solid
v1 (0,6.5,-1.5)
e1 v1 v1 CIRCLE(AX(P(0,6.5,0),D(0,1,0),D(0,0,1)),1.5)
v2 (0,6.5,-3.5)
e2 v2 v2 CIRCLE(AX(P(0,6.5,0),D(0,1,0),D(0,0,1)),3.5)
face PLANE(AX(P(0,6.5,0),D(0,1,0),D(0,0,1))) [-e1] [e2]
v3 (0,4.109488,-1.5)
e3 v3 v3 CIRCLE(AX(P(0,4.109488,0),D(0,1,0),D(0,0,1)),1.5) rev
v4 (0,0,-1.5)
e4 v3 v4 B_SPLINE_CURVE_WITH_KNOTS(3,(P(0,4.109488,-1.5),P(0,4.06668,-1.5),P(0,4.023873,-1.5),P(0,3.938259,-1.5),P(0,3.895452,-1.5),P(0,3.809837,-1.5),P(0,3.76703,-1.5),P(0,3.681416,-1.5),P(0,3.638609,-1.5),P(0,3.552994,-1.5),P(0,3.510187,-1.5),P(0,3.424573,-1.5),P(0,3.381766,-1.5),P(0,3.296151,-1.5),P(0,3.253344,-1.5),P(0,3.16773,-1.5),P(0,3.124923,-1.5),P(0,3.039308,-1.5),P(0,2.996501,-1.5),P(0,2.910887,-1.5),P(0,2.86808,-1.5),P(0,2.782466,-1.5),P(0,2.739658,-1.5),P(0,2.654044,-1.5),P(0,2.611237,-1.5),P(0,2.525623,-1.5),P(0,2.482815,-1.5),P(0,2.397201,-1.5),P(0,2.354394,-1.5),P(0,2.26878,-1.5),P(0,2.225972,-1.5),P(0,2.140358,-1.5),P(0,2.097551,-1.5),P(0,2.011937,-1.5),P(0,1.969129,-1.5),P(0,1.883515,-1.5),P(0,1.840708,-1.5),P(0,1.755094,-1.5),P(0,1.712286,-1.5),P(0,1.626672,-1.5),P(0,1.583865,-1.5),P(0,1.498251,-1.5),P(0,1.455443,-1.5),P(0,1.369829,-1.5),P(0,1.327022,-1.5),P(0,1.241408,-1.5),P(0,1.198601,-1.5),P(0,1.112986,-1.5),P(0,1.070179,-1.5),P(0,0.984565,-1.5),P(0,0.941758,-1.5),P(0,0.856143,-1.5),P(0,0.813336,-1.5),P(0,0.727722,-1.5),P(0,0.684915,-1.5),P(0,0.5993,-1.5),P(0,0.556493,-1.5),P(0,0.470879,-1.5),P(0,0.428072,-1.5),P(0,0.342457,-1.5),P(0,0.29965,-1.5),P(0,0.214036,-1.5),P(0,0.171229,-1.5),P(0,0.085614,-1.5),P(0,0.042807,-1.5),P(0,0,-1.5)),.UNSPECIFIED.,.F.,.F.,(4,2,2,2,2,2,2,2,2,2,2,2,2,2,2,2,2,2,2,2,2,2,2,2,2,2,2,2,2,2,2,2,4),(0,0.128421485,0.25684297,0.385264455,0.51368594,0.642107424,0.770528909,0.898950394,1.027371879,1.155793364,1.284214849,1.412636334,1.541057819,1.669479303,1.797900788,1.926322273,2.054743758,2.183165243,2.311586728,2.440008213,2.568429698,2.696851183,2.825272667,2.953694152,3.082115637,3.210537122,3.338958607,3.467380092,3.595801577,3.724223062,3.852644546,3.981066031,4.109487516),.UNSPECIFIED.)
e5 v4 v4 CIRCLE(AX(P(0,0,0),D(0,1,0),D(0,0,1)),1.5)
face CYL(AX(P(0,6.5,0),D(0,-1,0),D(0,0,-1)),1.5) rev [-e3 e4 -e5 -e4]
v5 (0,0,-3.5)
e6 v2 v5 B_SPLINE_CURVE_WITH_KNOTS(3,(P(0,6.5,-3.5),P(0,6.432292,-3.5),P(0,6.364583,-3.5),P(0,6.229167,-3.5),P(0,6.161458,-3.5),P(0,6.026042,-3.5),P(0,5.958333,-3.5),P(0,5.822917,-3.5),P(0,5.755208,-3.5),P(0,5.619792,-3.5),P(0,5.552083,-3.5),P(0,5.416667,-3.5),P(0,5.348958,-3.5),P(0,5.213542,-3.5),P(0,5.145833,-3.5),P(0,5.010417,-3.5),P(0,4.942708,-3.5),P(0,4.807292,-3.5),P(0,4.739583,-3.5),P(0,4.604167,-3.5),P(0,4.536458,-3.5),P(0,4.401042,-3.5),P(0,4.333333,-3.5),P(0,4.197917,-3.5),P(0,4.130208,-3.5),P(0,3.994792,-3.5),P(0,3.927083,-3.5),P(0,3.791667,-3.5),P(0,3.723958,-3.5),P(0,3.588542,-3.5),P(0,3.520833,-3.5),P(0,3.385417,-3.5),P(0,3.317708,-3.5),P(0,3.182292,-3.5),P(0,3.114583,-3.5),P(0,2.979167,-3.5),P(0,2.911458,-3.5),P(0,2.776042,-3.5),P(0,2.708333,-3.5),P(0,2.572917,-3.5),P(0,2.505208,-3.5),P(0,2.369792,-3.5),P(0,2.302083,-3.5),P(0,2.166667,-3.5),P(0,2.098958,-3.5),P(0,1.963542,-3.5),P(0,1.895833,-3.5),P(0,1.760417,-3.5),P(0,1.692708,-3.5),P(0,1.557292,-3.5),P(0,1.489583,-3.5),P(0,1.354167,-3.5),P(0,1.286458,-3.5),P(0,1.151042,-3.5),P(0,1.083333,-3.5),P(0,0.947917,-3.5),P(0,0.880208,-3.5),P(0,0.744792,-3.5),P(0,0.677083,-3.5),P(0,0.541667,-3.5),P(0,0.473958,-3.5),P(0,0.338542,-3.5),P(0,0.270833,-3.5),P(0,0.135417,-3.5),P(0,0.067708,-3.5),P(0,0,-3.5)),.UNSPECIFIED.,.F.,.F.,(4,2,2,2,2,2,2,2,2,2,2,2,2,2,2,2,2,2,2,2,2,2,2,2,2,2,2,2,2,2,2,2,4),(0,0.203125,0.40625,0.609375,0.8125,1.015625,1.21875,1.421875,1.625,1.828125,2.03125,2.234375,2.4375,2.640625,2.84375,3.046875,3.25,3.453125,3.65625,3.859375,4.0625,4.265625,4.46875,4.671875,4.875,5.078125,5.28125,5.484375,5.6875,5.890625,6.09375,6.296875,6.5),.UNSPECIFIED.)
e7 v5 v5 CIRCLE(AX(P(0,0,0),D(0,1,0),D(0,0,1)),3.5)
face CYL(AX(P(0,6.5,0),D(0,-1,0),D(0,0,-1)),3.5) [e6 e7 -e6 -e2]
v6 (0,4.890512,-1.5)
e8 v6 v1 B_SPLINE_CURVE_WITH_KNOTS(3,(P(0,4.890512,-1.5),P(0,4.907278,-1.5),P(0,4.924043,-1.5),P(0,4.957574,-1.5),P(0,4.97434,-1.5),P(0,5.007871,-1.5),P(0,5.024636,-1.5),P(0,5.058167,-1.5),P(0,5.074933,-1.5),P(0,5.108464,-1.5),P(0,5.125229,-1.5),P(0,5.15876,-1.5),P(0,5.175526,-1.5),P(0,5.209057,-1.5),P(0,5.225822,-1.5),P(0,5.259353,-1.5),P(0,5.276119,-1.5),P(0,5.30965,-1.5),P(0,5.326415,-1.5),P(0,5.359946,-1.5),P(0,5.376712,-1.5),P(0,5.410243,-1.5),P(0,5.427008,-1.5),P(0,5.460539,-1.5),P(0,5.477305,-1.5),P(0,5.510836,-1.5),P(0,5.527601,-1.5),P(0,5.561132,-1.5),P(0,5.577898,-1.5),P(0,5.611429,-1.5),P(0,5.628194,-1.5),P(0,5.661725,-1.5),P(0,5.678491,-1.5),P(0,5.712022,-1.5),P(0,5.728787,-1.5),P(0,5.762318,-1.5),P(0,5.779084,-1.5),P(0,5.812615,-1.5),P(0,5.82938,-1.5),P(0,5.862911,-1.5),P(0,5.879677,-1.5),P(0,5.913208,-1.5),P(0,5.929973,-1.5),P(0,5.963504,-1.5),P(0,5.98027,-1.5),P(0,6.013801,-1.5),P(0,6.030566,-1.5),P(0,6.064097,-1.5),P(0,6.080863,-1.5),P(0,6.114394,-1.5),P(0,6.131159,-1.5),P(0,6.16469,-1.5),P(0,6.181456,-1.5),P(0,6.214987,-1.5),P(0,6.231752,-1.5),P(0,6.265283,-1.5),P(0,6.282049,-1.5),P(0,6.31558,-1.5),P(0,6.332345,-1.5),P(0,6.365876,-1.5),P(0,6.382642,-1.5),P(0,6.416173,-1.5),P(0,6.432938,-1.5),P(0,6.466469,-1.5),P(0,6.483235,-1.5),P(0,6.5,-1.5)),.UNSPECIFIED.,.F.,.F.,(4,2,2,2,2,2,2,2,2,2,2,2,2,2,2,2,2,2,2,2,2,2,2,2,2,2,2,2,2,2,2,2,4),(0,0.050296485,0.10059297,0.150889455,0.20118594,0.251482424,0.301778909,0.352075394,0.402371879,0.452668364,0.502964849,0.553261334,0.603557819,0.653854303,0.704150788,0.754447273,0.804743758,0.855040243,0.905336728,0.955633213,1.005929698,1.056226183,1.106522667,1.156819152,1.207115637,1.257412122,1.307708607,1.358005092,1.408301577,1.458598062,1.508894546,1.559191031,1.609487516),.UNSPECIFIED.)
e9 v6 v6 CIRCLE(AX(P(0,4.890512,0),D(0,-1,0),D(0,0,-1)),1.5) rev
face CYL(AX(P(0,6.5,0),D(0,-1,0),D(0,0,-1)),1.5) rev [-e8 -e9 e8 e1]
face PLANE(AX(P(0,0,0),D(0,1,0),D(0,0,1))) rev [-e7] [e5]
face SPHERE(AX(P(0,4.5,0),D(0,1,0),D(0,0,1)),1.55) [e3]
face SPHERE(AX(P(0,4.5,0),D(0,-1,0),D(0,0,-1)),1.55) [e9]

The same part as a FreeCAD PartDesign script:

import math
import FreeCAD as App
import Part
import Sketcher

V = App.Vector
Q = App.Units.Quantity

doc = App.newDocument("Part")
body = doc.addObject("PartDesign::Body", "Body")

# Sketch on XZ plane
sketch1 = body.newObject("Sketcher::SketchObject", "Sketch")
sketch1.AttachmentSupport = (doc.getObject("XZ_Plane"), [""])
sketch1.MapMode = "FlatFace"
sketch1.addGeometry(Part.Circle(V(0, 0, 0), V(0, 0, 1), 3.5), False)
sketch1.addGeometry(Part.Circle(V(0, 0, 0), V(0, 0, 1), 1.5), False)
sketch1.addConstraint(Sketcher.Constraint("Coincident", 0, 3, -1, 1))
sketch1.addConstraint(Sketcher.Constraint("Coincident", 1, 3, -1, 1))
sketch1.addConstraint(Sketcher.Constraint("Diameter", 0, Q("7 mm")))
sketch1.addConstraint(Sketcher.Constraint("Diameter", 1, Q("3 mm")))
pad1 = body.newObject("PartDesign::Pad", "Pad")
pad1.Profile = sketch1
pad1.Length = 6.5
pad1.Reversed = True

# Sketch on XZ plane
sketch2 = body.newObject("Sketcher::SketchObject", "Sketch001")
sketch2.AttachmentSupport = (doc.getObject("XZ_Plane"), [""])
sketch2.MapMode = "FlatFace"
sketch2.AttachmentOffset = App.Placement(V(0, 0, -4.5), App.Rotation())
sketch2.addGeometry(Part.LineSegment(V(1.55, 0, 0), V(-1.55, 0, 0)), False)
sketch2.addGeometry(Part.ArcOfCircle(Part.Circle(V(0, 0, 0), V(0, 0, 1), 1.55), math.radians(0), math.radians(180)), False)
sketch2.addConstraint(Sketcher.Constraint("Coincident", 0, 1, 1, 1))
sketch2.addConstraint(Sketcher.Constraint("Coincident", 1, 2, 0, 2))
sketch2.addConstraint(Sketcher.Constraint("Horizontal", 0))
sketch2.addConstraint(Sketcher.Constraint("Coincident", 1, 3, -1, 1))
sketch2.addConstraint(Sketcher.Constraint("PointOnObject", 0, 1, -1))
sketch2.addConstraint(Sketcher.Constraint("Radius", 1, Q("1.55 mm")))
revolution = body.newObject("PartDesign::Revolution", "Revolution")
revolution.Profile = sketch2
revolution.ReferenceAxis = (sketch2, ["H_Axis"])
revolution.Angle = 360

doc.recompute()
